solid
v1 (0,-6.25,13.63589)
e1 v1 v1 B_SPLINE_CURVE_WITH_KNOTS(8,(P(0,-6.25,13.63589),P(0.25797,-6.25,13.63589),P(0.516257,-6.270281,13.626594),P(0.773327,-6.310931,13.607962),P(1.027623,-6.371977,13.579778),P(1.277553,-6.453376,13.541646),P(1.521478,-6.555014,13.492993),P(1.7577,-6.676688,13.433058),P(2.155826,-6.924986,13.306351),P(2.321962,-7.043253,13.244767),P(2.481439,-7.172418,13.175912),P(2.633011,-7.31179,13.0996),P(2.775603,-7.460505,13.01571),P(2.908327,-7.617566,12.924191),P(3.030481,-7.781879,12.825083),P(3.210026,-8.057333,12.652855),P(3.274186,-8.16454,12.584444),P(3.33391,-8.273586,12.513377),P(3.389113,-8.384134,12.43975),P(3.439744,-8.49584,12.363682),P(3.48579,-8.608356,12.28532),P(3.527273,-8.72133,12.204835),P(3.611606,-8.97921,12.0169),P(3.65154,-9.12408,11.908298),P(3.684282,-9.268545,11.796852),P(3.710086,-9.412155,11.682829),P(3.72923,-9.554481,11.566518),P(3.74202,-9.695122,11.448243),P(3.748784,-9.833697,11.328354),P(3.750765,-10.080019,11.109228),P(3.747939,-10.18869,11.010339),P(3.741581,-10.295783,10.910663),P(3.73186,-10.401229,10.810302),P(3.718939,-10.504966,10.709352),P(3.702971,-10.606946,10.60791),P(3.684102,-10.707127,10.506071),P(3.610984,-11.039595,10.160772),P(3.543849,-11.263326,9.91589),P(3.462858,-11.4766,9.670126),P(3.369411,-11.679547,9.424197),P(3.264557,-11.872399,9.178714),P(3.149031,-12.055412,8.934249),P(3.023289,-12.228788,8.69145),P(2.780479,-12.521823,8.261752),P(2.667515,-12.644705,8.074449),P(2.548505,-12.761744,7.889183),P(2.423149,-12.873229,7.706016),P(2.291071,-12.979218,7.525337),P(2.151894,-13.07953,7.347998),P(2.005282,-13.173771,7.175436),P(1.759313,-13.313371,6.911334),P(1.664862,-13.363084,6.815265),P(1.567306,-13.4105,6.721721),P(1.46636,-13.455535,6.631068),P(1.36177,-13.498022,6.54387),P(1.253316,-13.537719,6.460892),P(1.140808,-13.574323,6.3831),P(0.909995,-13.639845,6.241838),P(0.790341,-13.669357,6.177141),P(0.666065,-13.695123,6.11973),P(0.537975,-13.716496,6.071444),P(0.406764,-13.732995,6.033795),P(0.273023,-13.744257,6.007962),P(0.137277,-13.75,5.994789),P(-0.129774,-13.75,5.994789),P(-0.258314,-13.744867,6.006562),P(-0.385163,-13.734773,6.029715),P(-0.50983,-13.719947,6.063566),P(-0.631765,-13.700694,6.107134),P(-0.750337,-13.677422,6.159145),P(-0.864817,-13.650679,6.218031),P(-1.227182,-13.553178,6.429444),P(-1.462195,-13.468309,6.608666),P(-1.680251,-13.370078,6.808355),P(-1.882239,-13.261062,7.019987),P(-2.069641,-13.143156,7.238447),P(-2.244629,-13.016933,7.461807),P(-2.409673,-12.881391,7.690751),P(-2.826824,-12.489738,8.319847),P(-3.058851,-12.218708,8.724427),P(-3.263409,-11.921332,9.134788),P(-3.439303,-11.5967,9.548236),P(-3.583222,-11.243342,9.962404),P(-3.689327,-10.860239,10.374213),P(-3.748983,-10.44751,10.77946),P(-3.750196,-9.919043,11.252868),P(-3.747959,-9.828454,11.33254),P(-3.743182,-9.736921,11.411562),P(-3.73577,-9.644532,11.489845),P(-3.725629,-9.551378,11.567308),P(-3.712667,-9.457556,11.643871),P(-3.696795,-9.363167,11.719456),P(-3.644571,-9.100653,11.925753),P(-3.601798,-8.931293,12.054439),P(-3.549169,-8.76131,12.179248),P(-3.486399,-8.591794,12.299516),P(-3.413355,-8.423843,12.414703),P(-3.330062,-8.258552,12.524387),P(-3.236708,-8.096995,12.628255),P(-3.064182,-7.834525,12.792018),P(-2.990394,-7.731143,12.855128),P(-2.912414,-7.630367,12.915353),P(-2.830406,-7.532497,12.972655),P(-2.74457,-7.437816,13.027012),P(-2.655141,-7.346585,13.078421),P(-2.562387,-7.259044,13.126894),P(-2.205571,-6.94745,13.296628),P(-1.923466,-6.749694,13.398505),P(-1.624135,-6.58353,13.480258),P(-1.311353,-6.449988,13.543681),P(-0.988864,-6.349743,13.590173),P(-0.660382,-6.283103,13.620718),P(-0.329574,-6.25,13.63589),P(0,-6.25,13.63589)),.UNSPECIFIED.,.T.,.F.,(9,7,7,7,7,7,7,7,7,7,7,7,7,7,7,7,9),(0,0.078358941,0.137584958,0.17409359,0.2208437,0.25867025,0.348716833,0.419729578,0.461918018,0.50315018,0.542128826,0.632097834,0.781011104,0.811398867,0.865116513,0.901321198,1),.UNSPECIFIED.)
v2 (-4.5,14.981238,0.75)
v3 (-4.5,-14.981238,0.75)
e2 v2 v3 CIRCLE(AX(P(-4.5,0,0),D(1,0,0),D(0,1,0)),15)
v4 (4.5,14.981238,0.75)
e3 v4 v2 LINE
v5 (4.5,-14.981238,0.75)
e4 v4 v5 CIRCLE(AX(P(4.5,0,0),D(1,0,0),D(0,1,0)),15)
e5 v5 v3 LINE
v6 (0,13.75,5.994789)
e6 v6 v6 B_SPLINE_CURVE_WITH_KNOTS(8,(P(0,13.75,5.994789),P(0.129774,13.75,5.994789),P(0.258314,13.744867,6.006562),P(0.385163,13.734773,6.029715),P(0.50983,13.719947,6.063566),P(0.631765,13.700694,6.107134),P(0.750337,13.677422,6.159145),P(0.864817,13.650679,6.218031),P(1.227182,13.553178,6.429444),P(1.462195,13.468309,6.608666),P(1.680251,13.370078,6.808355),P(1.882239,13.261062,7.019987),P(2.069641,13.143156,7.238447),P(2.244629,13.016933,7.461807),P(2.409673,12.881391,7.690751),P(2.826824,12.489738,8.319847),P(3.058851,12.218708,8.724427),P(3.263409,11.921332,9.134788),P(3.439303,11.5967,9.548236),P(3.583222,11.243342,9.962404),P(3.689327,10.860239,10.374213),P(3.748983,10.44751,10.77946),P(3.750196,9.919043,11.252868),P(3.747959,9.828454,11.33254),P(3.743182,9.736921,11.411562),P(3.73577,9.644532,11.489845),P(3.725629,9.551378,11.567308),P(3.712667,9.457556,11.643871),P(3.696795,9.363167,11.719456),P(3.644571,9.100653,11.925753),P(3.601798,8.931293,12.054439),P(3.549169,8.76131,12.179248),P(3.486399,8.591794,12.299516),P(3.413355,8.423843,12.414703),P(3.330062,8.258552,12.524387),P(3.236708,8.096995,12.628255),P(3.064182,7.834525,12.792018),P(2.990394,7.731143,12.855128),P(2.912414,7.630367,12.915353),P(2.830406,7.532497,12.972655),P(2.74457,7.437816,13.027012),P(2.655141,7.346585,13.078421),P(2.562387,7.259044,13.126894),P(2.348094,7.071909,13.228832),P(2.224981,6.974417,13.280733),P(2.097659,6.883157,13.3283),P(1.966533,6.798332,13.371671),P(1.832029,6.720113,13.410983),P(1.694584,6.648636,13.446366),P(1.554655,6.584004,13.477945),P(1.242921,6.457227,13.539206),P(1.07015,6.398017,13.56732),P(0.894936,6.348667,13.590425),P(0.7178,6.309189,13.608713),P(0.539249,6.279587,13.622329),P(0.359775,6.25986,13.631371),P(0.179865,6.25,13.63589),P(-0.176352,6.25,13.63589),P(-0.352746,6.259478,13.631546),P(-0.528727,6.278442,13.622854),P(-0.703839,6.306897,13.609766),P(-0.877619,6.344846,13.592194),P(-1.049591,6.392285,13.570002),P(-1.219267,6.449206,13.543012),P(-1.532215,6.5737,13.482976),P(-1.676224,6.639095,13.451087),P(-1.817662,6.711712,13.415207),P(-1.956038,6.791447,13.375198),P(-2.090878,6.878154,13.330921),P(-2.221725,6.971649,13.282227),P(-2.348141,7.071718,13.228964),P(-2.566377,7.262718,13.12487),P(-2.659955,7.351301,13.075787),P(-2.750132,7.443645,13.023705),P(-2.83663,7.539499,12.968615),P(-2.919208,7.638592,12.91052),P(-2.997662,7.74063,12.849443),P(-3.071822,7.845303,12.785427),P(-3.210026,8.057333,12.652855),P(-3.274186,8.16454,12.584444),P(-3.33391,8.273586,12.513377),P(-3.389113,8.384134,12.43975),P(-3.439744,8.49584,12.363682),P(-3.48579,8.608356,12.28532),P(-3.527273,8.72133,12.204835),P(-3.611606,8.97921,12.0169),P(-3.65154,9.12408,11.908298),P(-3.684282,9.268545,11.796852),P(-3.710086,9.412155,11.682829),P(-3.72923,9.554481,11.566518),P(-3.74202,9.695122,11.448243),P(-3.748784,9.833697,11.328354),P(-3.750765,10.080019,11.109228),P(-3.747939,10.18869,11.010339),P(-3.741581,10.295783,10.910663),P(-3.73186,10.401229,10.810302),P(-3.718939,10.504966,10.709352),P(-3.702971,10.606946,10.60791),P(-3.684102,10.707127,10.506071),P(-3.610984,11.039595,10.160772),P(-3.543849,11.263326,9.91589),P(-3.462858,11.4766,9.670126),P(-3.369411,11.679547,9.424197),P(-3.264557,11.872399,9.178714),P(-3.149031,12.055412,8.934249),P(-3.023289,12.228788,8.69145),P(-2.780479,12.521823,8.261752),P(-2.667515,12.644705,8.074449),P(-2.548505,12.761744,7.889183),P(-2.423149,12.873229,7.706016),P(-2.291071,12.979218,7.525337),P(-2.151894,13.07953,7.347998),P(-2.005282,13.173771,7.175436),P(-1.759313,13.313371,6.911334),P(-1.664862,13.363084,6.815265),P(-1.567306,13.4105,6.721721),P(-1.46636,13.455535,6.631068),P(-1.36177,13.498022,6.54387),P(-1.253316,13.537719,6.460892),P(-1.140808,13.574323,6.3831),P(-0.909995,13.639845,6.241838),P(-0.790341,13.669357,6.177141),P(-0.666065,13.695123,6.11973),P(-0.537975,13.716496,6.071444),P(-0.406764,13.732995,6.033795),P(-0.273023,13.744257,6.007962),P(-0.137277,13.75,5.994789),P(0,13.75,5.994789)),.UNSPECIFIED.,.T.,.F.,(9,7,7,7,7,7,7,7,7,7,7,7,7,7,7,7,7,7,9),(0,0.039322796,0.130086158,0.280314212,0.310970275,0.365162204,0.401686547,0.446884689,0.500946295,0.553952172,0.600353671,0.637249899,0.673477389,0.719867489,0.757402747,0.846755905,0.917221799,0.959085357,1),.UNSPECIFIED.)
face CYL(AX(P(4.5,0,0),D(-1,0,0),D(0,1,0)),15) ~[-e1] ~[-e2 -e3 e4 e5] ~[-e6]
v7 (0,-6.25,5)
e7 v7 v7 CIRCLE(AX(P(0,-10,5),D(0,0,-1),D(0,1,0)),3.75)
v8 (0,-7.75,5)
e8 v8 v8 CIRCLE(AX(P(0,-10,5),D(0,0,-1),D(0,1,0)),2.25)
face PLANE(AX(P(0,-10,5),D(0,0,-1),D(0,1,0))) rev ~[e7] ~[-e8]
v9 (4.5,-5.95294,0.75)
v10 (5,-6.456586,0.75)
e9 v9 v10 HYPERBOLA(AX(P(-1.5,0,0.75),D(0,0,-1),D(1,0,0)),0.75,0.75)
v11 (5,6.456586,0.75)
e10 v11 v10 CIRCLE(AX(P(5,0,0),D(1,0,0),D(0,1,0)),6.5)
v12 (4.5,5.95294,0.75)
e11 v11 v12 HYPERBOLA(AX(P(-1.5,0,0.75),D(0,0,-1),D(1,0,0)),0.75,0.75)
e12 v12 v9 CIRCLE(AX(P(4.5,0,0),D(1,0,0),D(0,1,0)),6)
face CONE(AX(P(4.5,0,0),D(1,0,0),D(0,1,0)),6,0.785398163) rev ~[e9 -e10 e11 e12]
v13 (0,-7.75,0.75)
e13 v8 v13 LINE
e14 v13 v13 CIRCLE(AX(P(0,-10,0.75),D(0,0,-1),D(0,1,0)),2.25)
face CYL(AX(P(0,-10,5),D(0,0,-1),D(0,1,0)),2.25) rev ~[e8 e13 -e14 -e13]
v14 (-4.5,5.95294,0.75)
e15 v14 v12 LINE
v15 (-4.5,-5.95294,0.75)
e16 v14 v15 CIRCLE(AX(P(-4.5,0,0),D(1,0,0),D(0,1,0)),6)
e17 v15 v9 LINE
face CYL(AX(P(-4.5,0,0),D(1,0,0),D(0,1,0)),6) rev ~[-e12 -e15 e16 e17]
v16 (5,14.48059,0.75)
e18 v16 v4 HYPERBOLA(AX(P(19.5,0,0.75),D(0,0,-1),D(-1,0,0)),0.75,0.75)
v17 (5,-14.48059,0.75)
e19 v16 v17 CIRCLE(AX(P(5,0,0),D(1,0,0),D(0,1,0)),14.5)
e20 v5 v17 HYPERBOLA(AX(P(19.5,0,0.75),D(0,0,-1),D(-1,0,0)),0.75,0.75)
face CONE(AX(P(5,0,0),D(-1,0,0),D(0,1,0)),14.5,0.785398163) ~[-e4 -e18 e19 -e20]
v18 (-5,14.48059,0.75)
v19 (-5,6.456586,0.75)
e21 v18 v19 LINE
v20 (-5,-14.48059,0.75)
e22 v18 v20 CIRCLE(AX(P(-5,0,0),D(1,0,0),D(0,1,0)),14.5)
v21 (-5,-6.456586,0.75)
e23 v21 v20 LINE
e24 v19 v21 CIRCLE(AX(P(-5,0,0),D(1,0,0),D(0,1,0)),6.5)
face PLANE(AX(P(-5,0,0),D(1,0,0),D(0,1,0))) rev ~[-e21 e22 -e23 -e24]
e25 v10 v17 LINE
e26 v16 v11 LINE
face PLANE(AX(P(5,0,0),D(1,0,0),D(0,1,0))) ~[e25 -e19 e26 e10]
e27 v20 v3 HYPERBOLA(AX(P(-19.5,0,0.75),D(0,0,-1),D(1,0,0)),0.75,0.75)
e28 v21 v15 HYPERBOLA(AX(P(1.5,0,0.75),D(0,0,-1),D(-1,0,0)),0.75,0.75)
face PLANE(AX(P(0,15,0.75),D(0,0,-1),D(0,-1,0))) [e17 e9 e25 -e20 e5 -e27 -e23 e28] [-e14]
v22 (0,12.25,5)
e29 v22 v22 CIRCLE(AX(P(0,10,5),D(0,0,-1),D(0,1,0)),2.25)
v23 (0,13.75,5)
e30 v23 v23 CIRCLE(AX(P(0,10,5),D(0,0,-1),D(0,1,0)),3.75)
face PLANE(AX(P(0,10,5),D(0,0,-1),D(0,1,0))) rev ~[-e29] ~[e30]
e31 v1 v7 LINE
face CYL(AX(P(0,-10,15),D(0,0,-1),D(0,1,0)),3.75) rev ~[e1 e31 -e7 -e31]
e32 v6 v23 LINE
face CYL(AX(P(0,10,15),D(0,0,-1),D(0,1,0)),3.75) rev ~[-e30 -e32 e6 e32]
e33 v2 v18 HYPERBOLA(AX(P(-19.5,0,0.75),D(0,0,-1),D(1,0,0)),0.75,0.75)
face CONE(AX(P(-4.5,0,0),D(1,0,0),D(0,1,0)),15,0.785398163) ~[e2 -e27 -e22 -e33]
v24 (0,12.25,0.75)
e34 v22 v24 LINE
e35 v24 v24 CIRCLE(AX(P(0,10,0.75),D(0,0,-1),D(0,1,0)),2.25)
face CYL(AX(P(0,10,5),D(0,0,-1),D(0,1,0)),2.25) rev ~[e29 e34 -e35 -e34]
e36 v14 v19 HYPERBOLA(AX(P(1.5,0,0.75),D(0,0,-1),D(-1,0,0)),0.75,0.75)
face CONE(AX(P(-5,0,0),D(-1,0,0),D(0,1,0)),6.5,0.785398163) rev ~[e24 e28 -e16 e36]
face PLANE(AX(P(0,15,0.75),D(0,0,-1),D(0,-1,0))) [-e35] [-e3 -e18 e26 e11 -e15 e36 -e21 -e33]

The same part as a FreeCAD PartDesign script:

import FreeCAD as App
import Part
import Sketcher

V = App.Vector

doc = App.newDocument("Part")
params = doc.addObject("Spreadsheet::Sheet", "Params")
for row, (alias, value) in enumerate([
    ("sketch1_width", "9 mm"),
    ("sketch1_height", "8 mm"),
    ("revolution_angle", "180 deg"),
    ("sketch2_width", "30 mm"),
    ("sketch2_height", "1.5 mm"),
    ("pocket1_length", "10 mm"),
    ("sketch3_height", "15 mm"),
    ("sketch3_height2", "5 mm"),
    ("sketch3_width", "1.5 mm"),
    ("sketch3_width2", "2.25 mm"),
    ("groove_angle", "360 deg"),
    ("sketch4_height", "15 mm"),
    ("sketch4_height2", "5 mm"),
    ("sketch4_width", "1.5 mm"),
    ("sketch4_width2", "2.25 mm"),
    ("groove2_angle", "360 deg"),
], start=1):
    params.set(f"A{row}", alias)
    params.set(f"B{row}", "=" + value)
    params.setAlias(f"B{row}", alias)

body = doc.addObject("PartDesign::Body", "Body")

# Sketch on XY plane
sketch1 = body.newObject("Sketcher::SketchObject", "Sketch")
sketch1.AttachmentSupport = (doc.getObject("XY_Plane"), [""])
sketch1.MapMode = "FlatFace"
sketch1.addGeometry(Part.LineSegment(V(-4.5, 15, 0), V(-5, 14.5, 0)), False)
sketch1.addGeometry(Part.LineSegment(V(-5, 14.5, 0), V(-5, 6.5, 0)), False)
sketch1.addGeometry(Part.LineSegment(V(-5, 6.5, 0), V(-4.5, 6, 0)), False)
sketch1.addGeometry(Part.LineSegment(V(-4.5, 6, 0), V(4.5, 6, 0)), False)
sketch1.addGeometry(Part.LineSegment(V(4.5, 6, 0), V(5, 6.5, 0)), False)
sketch1.addGeometry(Part.LineSegment(V(5, 6.5, 0), V(5, 14.5, 0)), False)
sketch1.addGeometry(Part.LineSegment(V(5, 14.5, 0), V(4.5, 15, 0)), False)
sketch1.addGeometry(Part.LineSegment(V(4.5, 15, 0), V(-4.5, 15, 0)), False)
sketch1.addConstraint(Sketcher.Constraint("Coincident", 0, 2, 1, 1))
sketch1.addConstraint(Sketcher.Constraint("Coincident", 1, 2, 2, 1))
sketch1.addConstraint(Sketcher.Constraint("Coincident", 2, 2, 3, 1))
sketch1.addConstraint(Sketcher.Constraint("Coincident", 3, 2, 4, 1))
sketch1.addConstraint(Sketcher.Constraint("Coincident", 4, 2, 5, 1))
sketch1.addConstraint(Sketcher.Constraint("Coincident", 5, 2, 6, 1))
sketch1.addConstraint(Sketcher.Constraint("Coincident", 6, 2, 7, 1))
sketch1.addConstraint(Sketcher.Constraint("Coincident", 7, 2, 0, 1))
sketch1.addConstraint(Sketcher.Constraint("Vertical", 1))
sketch1.addConstraint(Sketcher.Constraint("Horizontal", 3))
sketch1.addConstraint(Sketcher.Constraint("Vertical", 5))
sketch1.addConstraint(Sketcher.Constraint("Horizontal", 7))
sketch1.addConstraint(Sketcher.Constraint("Symmetric", 1, 2, 4, 2, -2))
sketch1.addConstraint(Sketcher.Constraint("Perpendicular", 0, 2))
sketch1.addConstraint(Sketcher.Constraint("Perpendicular", 2, 4))
sketch1.addConstraint(Sketcher.Constraint("Perpendicular", 4, 6))
sketch1.addConstraint(Sketcher.Constraint("Horizontal", 0, 2, 5, 2))
sketch1.addConstraint(Sketcher.Constraint("Vertical", 3, 2, 6, 2))
sketch1.addConstraint(Sketcher.Constraint("Vertical", 2, 2, 7, 2))
sketch1.addConstraint(Sketcher.Constraint("DistanceX", 3, 1, 3, 2, 9.0))
sketch1.addConstraint(Sketcher.Constraint("DistanceY", 1, 2, 1, 1, 8.0))
sketch1.addConstraint(Sketcher.Constraint("DistanceX", 0, 2, -1, 1, 5.0))
sketch1.addConstraint(Sketcher.Constraint("DistanceY", -1, 1, 2, 2, 6.0))
sketch1.setExpression("Constraints[19]", "Params.sketch1_width")
sketch1.setExpression("Constraints[20]", "Params.sketch1_height")
revolution = body.newObject("PartDesign::Revolution", "Revolution")
revolution.Profile = sketch1
revolution.ReferenceAxis = (sketch1, ["H_Axis"])
revolution.setExpression("Angle", "Params.revolution_angle")

# Sketch on YZ plane
sketch2 = body.newObject("Sketcher::SketchObject", "Sketch001")
sketch2.AttachmentSupport = (doc.getObject("YZ_Plane"), [""])
sketch2.MapMode = "FlatFace"
sketch2.addGeometry(Part.LineSegment(V(15, 0.8, 0), V(-15, 0.8, 0)), False)
sketch2.addGeometry(Part.LineSegment(V(-15, 0.8, 0), V(-15, -0.8, 0)), False)
sketch2.addGeometry(Part.LineSegment(V(-15, -0.8, 0), V(15, -0.8, 0)), False)
sketch2.addGeometry(Part.LineSegment(V(15, -0.8, 0), V(15, 0.8, 0)), False)
sketch2.addConstraint(Sketcher.Constraint("Coincident", 0, 2, 1, 1))
sketch2.addConstraint(Sketcher.Constraint("Coincident", 1, 2, 2, 1))
sketch2.addConstraint(Sketcher.Constraint("Coincident", 2, 2, 3, 1))
sketch2.addConstraint(Sketcher.Constraint("Coincident", 3, 2, 0, 1))
sketch2.addConstraint(Sketcher.Constraint("Horizontal", 0))
sketch2.addConstraint(Sketcher.Constraint("Vertical", 1))
sketch2.addConstraint(Sketcher.Constraint("Horizontal", 2))
sketch2.addConstraint(Sketcher.Constraint("Vertical", 3))
sketch2.addConstraint(Sketcher.Constraint("Symmetric", 0, 2, 2, 2, -1, 1))
sketch2.addConstraint(Sketcher.Constraint("DistanceX", 0, 2, 0, 1, 30.0))
sketch2.addConstraint(Sketcher.Constraint("DistanceY", 1, 2, 1, 1, 1.5))
sketch2.setExpression("Constraints[9]", "Params.sketch2_width")
sketch2.setExpression("Constraints[10]", "Params.sketch2_height")
pocket1 = body.newObject("PartDesign::Pocket", "Pocket")
pocket1.Profile = sketch2
pocket1.setExpression("Length", "Params.pocket1_length")
pocket1.Midplane = True

# Sketch on YZ plane
sketch3 = body.newObject("Sketcher::SketchObject", "Sketch002")
sketch3.AttachmentSupport = (doc.getObject("YZ_Plane"), [""])
sketch3.MapMode = "FlatFace"
sketch3.addGeometry(Part.LineSegment(V(-10, 15, 0), V(-10, 0, 0)), False)
sketch3.addGeometry(Part.LineSegment(V(-10, 0, 0), V(-7.8, 0, 0)), False)
sketch3.addGeometry(Part.LineSegment(V(-7.8, 0, 0), V(-7.8, 5, 0)), False)
sketch3.addGeometry(Part.LineSegment(V(-7.8, 5, 0), V(-6.2, 5, 0)), False)
sketch3.addGeometry(Part.LineSegment(V(-6.2, 5, 0), V(-6.2, 15, 0)), False)
sketch3.addGeometry(Part.LineSegment(V(-6.2, 15, 0), V(-10, 15, 0)), False)
sketch3.addGeometry(Part.LineSegment(V(-10, 15, 0), V(-10, 0, 0)), True)  # axis
sketch3.addConstraint(Sketcher.Constraint("Coincident", 0, 2, 1, 1))
sketch3.addConstraint(Sketcher.Constraint("Coincident", 1, 2, 2, 1))
sketch3.addConstraint(Sketcher.Constraint("Coincident", 2, 2, 3, 1))
sketch3.addConstraint(Sketcher.Constraint("Coincident", 3, 2, 4, 1))
sketch3.addConstraint(Sketcher.Constraint("Coincident", 4, 2, 5, 1))
sketch3.addConstraint(Sketcher.Constraint("Coincident", 5, 2, 0, 1))
sketch3.addConstraint(Sketcher.Constraint("Vertical", 0))
sketch3.addConstraint(Sketcher.Constraint("Horizontal", 1))
sketch3.addConstraint(Sketcher.Constraint("Vertical", 2))
sketch3.addConstraint(Sketcher.Constraint("Horizontal", 3))
sketch3.addConstraint(Sketcher.Constraint("Vertical", 4))
sketch3.addConstraint(Sketcher.Constraint("Horizontal", 5))
sketch3.addConstraint(Sketcher.Constraint("Vertical", 6))
sketch3.addConstraint(Sketcher.Constraint("Coincident", 6, 1, 5, 2))
sketch3.addConstraint(Sketcher.Constraint("PointOnObject", 0, 2, -1))
sketch3.addConstraint(Sketcher.Constraint("PointOnObject", 6, 2, -1))
sketch3.addConstraint(Sketcher.Constraint("DistanceY", 0, 2, 0, 1, 15.0))
sketch3.addConstraint(Sketcher.Constraint("DistanceY", 2, 1, 2, 2, 5.0))
sketch3.addConstraint(Sketcher.Constraint("DistanceX", 3, 1, 3, 2, 1.5))
sketch3.addConstraint(Sketcher.Constraint("DistanceX", 0, 2, -1, 1, 10.0))
sketch3.addConstraint(Sketcher.Constraint("DistanceX", 1, 1, 1, 2, 2.25))
sketch3.setExpression("Constraints[16]", "Params.sketch3_height")
sketch3.setExpression("Constraints[17]", "Params.sketch3_height2")
sketch3.setExpression("Constraints[18]", "Params.sketch3_width")
sketch3.setExpression("Constraints[20]", "Params.sketch3_width2")
groove = body.newObject("PartDesign::Groove", "Groove")
groove.Profile = sketch3
groove.ReferenceAxis = (sketch3, ["Axis0"])
groove.setExpression("Angle", "Params.groove_angle")

# Sketch on YZ plane
sketch4 = body.newObject("Sketcher::SketchObject", "Sketch003")
sketch4.AttachmentSupport = (doc.getObject("YZ_Plane"), [""])
sketch4.MapMode = "FlatFace"
sketch4.addGeometry(Part.LineSegment(V(10, 15, 0), V(10, 0, 0)), False)
sketch4.addGeometry(Part.LineSegment(V(10, 0, 0), V(12.2, 0, 0)), False)
sketch4.addGeometry(Part.LineSegment(V(12.2, 0, 0), V(12.2, 5, 0)), False)
sketch4.addGeometry(Part.LineSegment(V(12.2, 5, 0), V(13.8, 5, 0)), False)
sketch4.addGeometry(Part.LineSegment(V(13.8, 5, 0), V(13.8, 15, 0)), False)
sketch4.addGeometry(Part.LineSegment(V(13.8, 15, 0), V(10, 15, 0)), False)
sketch4.addGeometry(Part.LineSegment(V(10, 15, 0), V(10, 0, 0)), True)  # axis
sketch4.addConstraint(Sketcher.Constraint("Coincident", 0, 2, 1, 1))
sketch4.addConstraint(Sketcher.Constraint("Coincident", 1, 2, 2, 1))
sketch4.addConstraint(Sketcher.Constraint("Coincident", 2, 2, 3, 1))
sketch4.addConstraint(Sketcher.Constraint("Coincident", 3, 2, 4, 1))
sketch4.addConstraint(Sketcher.Constraint("Coincident", 4, 2, 5, 1))
sketch4.addConstraint(Sketcher.Constraint("Coincident", 5, 2, 0, 1))
sketch4.addConstraint(Sketcher.Constraint("Vertical", 0))
sketch4.addConstraint(Sketcher.Constraint("Horizontal", 1))
sketch4.addConstraint(Sketcher.Constraint("Vertical", 2))
sketch4.addConstraint(Sketcher.Constraint("Horizontal", 3))
sketch4.addConstraint(Sketcher.Constraint("Vertical", 4))
sketch4.addConstraint(Sketcher.Constraint("Horizontal", 5))
sketch4.addConstraint(Sketcher.Constraint("Vertical", 6))
sketch4.addConstraint(Sketcher.Constraint("Coincident", 6, 1, 5, 2))
sketch4.addConstraint(Sketcher.Constraint("PointOnObject", 0, 2, -1))
sketch4.addConstraint(Sketcher.Constraint("PointOnObject", 6, 2, -1))
sketch4.addConstraint(Sketcher.Constraint("DistanceY", 0, 2, 0, 1, 15.0))
sketch4.addConstraint(Sketcher.Constraint("DistanceY", 2, 1, 2, 2, 5.0))
sketch4.addConstraint(Sketcher.Constraint("DistanceX", 3, 1, 3, 2, 1.5))
sketch4.addConstraint(Sketcher.Constraint("DistanceX", -1, 1, 0, 2, 10.0))
sketch4.addConstraint(Sketcher.Constraint("DistanceX", 1, 1, 1, 2, 2.25))
sketch4.setExpression("Constraints[16]", "Params.sketch4_height")
sketch4.setExpression("Constraints[17]", "Params.sketch4_height2")
sketch4.setExpression("Constraints[18]", "Params.sketch4_width")
sketch4.setExpression("Constraints[20]", "Params.sketch4_width2")
groove2 = body.newObject("PartDesign::Groove", "Groove001")
groove2.Profile = sketch4
groove2.ReferenceAxis = (sketch4, ["Axis0"])
groove2.setExpression("Angle", "Params.groove2_angle")

doc.recompute()
